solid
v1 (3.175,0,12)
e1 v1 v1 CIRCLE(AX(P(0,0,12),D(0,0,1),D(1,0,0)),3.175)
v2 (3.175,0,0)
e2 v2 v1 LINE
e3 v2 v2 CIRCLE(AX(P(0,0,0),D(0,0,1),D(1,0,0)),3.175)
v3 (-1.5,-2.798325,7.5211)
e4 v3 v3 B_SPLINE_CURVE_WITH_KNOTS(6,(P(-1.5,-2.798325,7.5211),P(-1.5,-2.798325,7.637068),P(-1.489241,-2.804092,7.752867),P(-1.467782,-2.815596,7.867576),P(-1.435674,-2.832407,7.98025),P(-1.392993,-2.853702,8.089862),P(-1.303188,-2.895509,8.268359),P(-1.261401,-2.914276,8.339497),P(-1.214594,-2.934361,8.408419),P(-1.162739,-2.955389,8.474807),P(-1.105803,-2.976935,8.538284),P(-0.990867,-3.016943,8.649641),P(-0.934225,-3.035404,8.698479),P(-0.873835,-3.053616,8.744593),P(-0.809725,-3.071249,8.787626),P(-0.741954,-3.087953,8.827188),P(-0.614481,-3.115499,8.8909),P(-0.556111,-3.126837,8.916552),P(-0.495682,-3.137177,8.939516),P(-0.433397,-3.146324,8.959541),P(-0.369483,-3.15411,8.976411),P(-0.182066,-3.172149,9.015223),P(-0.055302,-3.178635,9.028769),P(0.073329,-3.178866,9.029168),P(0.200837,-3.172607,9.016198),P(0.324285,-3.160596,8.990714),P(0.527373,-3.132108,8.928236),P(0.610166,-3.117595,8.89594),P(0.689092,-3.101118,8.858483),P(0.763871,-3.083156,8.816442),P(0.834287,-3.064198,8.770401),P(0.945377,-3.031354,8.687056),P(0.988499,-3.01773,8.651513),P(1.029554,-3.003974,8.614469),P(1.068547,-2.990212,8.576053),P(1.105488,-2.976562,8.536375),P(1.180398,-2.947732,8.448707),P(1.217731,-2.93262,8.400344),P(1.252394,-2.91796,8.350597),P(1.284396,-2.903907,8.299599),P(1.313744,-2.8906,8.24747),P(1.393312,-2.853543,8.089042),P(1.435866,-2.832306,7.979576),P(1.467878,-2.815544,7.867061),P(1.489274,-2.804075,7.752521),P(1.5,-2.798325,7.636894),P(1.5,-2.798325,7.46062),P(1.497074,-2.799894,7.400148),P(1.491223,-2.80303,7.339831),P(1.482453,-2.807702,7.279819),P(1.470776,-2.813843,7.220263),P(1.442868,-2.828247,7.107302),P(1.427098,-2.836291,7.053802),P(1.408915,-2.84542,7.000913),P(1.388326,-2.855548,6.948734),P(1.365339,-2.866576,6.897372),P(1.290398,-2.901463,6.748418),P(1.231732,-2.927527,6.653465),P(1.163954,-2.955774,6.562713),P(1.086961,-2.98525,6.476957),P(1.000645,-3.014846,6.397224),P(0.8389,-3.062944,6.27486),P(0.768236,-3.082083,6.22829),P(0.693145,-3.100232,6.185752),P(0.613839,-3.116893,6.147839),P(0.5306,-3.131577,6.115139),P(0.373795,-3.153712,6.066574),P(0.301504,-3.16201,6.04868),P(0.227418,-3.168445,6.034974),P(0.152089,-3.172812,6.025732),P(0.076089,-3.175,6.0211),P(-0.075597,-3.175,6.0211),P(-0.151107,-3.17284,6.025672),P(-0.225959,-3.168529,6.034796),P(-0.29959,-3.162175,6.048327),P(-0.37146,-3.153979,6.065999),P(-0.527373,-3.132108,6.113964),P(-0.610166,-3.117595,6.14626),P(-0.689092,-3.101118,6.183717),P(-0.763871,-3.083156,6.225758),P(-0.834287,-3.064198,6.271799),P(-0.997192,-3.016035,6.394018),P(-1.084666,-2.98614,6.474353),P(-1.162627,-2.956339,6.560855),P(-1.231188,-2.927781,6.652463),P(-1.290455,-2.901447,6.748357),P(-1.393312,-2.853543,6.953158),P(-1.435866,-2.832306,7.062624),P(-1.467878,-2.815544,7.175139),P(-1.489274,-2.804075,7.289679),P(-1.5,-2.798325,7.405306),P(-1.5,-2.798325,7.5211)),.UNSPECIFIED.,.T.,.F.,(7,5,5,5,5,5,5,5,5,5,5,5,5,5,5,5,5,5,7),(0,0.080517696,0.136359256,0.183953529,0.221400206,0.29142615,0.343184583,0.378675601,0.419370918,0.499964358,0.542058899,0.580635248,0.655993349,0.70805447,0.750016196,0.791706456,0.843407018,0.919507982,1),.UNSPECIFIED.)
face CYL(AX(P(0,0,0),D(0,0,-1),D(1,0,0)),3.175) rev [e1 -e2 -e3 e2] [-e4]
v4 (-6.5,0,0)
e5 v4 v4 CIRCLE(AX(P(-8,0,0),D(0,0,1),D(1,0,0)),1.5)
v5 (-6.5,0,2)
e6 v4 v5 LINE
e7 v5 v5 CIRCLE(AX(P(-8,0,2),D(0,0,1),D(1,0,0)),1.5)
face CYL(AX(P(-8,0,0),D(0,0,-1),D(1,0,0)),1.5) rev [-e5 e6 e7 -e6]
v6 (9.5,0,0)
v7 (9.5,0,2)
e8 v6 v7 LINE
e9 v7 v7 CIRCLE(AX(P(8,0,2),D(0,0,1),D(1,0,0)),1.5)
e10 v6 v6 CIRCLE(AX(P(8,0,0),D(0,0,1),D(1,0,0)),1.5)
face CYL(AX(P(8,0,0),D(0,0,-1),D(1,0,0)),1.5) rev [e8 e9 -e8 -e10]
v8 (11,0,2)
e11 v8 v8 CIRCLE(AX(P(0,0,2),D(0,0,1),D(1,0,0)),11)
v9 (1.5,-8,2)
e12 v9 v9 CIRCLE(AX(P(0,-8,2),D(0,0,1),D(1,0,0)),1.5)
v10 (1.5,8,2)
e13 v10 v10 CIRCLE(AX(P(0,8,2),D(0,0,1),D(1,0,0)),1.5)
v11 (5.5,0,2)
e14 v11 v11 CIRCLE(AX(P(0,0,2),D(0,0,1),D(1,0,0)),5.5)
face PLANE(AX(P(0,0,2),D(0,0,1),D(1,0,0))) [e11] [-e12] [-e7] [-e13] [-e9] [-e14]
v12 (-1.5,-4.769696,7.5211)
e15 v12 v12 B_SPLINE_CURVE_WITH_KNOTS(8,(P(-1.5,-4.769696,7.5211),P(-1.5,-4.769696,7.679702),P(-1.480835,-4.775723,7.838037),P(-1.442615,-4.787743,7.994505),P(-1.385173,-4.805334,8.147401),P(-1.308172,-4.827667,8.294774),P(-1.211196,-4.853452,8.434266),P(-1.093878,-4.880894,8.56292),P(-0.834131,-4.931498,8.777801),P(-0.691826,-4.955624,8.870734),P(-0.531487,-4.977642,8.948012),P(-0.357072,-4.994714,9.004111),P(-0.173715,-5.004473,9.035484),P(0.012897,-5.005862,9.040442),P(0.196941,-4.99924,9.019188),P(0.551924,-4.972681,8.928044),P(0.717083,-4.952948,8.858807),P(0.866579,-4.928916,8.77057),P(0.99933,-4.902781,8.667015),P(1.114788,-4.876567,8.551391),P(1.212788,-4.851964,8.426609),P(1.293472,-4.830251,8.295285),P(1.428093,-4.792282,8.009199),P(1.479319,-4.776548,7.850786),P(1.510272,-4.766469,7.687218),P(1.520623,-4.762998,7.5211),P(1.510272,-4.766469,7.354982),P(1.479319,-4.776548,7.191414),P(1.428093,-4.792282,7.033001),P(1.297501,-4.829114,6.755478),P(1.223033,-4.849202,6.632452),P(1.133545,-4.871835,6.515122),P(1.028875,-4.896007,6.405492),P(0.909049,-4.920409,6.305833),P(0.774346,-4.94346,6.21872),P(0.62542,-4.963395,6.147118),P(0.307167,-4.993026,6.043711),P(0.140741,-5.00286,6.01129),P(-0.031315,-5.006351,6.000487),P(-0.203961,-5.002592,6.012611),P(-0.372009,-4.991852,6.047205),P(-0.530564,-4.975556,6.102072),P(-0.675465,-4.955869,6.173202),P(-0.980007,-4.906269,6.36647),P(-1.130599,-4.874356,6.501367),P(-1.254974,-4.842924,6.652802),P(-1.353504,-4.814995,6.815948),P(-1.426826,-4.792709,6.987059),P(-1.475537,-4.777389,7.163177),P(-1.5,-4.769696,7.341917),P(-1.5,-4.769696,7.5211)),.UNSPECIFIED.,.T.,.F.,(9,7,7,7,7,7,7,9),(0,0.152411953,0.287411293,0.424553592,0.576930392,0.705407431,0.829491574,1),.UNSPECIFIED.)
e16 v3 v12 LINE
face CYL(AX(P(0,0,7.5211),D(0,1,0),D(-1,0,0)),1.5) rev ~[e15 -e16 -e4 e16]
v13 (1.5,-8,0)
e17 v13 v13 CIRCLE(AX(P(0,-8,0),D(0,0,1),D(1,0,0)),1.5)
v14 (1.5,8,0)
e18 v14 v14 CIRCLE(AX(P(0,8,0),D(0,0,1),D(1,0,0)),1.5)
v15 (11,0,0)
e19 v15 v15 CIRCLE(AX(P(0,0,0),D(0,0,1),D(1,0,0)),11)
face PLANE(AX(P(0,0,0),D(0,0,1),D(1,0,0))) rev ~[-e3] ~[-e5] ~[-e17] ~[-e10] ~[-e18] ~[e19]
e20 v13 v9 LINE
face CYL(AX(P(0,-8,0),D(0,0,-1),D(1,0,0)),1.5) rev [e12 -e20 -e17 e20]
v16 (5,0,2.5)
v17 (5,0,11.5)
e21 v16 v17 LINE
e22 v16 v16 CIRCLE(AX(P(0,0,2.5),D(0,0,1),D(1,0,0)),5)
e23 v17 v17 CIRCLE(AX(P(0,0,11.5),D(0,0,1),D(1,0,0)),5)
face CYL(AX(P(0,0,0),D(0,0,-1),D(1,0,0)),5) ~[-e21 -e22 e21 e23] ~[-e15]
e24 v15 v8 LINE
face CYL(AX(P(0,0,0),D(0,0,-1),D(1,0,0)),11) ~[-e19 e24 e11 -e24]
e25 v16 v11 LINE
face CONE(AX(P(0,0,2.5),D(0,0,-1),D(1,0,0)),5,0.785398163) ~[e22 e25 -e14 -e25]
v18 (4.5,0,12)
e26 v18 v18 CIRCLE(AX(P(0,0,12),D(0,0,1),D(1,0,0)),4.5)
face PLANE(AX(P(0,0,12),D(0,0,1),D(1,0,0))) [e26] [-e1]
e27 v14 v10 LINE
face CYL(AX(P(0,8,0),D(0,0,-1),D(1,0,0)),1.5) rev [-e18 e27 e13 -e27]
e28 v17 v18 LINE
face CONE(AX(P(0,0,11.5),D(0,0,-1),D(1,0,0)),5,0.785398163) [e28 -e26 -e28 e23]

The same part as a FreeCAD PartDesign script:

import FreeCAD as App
import Part
import Sketcher

V = App.Vector
Q = App.Units.Quantity


def edges_at(feature, points):
    """Names of the edges that pass closest to the given points."""
    edges = feature.Shape.Edges
    near = lambda p: min(range(len(edges)), key=lambda i: edges[i].distToShape(Part.Vertex(*p))[0])
    return sorted({f"Edge{near(p) + 1}" for p in points})

doc = App.newDocument("Part")
params = doc.addObject("Spreadsheet::Sheet", "Params")
for row, (alias, value) in enumerate([
    ("sketch1_diameter", "10 mm"),
    ("sketch1_diameter2", "6.35 mm"),
    ("pad1_length", "12 mm"),
    ("sketch2_diameter", "22 mm"),
    ("sketch2_diameter2", "3 mm"),
    ("sketch2_diameter3", "10 mm"),
    ("pad2_length", "2 mm"),
    ("chamfer_size", "0.5 mm"),
    ("sketch3_diameter", "3 mm"),
    ("pocket1_length", "10 mm"),
], start=1):
    params.set(f"A{row}", alias)
    params.set(f"B{row}", "=" + value)
    params.setAlias(f"B{row}", alias)

body = doc.addObject("PartDesign::Body", "Body")

sketch1 = doc.addObject("Sketcher::SketchObject", "Sketch")
body.addObject(sketch1)
sketch1.AttachmentSupport = (doc.XY_Plane, [""])
sketch1.MapMode = "FlatFace"
sketch1.addGeometry([
    Part.Circle(V(0, 0, 0), V(0, 0, 1), 5),
    Part.Circle(V(0, 0, 0), V(0, 0, 1), 3.2),
], False)
sketch1.addConstraint([
    Sketcher.Constraint("Coincident", 0, 3, -1, 1),
    Sketcher.Constraint("Coincident", 1, 3, -1, 1),
    Sketcher.Constraint("Diameter", 0, Q("10 mm")),
    Sketcher.Constraint("Diameter", 1, Q("6.35 mm")),
])
sketch1.setExpression("Constraints[2]", "Params.sketch1_diameter")
sketch1.setExpression("Constraints[3]", "Params.sketch1_diameter2")
pad1 = doc.addObject("PartDesign::Pad", "Pad")
body.addObject(pad1)
pad1.Profile = sketch1
pad1.setExpression("Length", "Params.pad1_length")

sketch2 = doc.addObject("Sketcher::SketchObject", "Sketch001")
body.addObject(sketch2)
sketch2.AttachmentSupport = (doc.XY_Plane, [""])
sketch2.MapMode = "FlatFace"
sketch2.addGeometry([
    Part.Circle(V(0, 0, 0), V(0, 0, 1), 11),
    Part.Circle(V(0, -8, 0), V(0, 0, 1), 1.5),
    Part.Circle(V(-8, 0, 0), V(0, 0, 1), 1.5),
    Part.Circle(V(0, 0, 0), V(0, 0, 1), 5),
    Part.Circle(V(8, 0, 0), V(0, 0, 1), 1.5),
    Part.Circle(V(0, 8, 0), V(0, 0, 1), 1.5),
], False)
sketch2.addConstraint([
    Sketcher.Constraint("Coincident", 0, 3, -1, 1),
    Sketcher.Constraint("Coincident", 3, 3, -1, 1),
    Sketcher.Constraint("Equal", 1, 2),
    Sketcher.Constraint("Equal", 2, 4),
    Sketcher.Constraint("Equal", 4, 5),
    Sketcher.Constraint("Symmetric", 2, 3, 4, 3, -1, 1),
    Sketcher.Constraint("Symmetric", 1, 3, 5, 3, -1, 1),
    Sketcher.Constraint("PointOnObject", 1, 3, -2),
    Sketcher.Constraint("PointOnObject", 2, 3, -1),
    Sketcher.Constraint("Diameter", 0, Q("22 mm")),
    Sketcher.Constraint("Diameter", 1, Q("3 mm")),
    Sketcher.Constraint("Diameter", 3, Q("10 mm")),
    Sketcher.Constraint("DistanceY", 1, 3, -1, 1, Q("8 mm")),
    Sketcher.Constraint("DistanceX", 2, 3, -1, 1, Q("8 mm")),
])
sketch2.setExpression("Constraints[9]", "Params.sketch2_diameter")
sketch2.setExpression("Constraints[10]", "Params.sketch2_diameter2")
sketch2.setExpression("Constraints[11]", "Params.sketch2_diameter3")
pad2 = doc.addObject("PartDesign::Pad", "Pad001")
body.addObject(pad2)
pad2.Profile = sketch2
pad2.setExpression("Length", "Params.pad2_length")
doc.recompute()

chamfer = doc.addObject("PartDesign::Chamfer", "Chamfer")
body.addObject(chamfer)
chamfer.Base = (pad2, edges_at(pad2, [(-5, 0, 2), (-5, 0, 12)]))
chamfer.setExpression("Size", "Params.chamfer_size")

sketch3 = doc.addObject("Sketcher::SketchObject", "Sketch002")
body.addObject(sketch3)
sketch3.AttachmentSupport = (doc.XZ_Plane, [""])
sketch3.MapMode = "FlatFace"
sketch3.addGeometry(Part.Circle(V(0, 7.5, 0), V(0, 0, 1), 1.5), False)
sketch3.addConstraint([
    Sketcher.Constraint("PointOnObject", 0, 3, -2),
    Sketcher.Constraint("Diameter", 0, Q("3 mm")),
    Sketcher.Constraint("DistanceY", -1, 1, 0, 3, Q("7.521 mm")),
])
sketch3.setExpression("Constraints[1]", "Params.sketch3_diameter")
pocket1 = doc.addObject("PartDesign::Pocket", "Pocket")
body.addObject(pocket1)
pocket1.Profile = sketch3
pocket1.setExpression("Length", "Params.pocket1_length")
pocket1.Reversed = True

doc.recompute()
